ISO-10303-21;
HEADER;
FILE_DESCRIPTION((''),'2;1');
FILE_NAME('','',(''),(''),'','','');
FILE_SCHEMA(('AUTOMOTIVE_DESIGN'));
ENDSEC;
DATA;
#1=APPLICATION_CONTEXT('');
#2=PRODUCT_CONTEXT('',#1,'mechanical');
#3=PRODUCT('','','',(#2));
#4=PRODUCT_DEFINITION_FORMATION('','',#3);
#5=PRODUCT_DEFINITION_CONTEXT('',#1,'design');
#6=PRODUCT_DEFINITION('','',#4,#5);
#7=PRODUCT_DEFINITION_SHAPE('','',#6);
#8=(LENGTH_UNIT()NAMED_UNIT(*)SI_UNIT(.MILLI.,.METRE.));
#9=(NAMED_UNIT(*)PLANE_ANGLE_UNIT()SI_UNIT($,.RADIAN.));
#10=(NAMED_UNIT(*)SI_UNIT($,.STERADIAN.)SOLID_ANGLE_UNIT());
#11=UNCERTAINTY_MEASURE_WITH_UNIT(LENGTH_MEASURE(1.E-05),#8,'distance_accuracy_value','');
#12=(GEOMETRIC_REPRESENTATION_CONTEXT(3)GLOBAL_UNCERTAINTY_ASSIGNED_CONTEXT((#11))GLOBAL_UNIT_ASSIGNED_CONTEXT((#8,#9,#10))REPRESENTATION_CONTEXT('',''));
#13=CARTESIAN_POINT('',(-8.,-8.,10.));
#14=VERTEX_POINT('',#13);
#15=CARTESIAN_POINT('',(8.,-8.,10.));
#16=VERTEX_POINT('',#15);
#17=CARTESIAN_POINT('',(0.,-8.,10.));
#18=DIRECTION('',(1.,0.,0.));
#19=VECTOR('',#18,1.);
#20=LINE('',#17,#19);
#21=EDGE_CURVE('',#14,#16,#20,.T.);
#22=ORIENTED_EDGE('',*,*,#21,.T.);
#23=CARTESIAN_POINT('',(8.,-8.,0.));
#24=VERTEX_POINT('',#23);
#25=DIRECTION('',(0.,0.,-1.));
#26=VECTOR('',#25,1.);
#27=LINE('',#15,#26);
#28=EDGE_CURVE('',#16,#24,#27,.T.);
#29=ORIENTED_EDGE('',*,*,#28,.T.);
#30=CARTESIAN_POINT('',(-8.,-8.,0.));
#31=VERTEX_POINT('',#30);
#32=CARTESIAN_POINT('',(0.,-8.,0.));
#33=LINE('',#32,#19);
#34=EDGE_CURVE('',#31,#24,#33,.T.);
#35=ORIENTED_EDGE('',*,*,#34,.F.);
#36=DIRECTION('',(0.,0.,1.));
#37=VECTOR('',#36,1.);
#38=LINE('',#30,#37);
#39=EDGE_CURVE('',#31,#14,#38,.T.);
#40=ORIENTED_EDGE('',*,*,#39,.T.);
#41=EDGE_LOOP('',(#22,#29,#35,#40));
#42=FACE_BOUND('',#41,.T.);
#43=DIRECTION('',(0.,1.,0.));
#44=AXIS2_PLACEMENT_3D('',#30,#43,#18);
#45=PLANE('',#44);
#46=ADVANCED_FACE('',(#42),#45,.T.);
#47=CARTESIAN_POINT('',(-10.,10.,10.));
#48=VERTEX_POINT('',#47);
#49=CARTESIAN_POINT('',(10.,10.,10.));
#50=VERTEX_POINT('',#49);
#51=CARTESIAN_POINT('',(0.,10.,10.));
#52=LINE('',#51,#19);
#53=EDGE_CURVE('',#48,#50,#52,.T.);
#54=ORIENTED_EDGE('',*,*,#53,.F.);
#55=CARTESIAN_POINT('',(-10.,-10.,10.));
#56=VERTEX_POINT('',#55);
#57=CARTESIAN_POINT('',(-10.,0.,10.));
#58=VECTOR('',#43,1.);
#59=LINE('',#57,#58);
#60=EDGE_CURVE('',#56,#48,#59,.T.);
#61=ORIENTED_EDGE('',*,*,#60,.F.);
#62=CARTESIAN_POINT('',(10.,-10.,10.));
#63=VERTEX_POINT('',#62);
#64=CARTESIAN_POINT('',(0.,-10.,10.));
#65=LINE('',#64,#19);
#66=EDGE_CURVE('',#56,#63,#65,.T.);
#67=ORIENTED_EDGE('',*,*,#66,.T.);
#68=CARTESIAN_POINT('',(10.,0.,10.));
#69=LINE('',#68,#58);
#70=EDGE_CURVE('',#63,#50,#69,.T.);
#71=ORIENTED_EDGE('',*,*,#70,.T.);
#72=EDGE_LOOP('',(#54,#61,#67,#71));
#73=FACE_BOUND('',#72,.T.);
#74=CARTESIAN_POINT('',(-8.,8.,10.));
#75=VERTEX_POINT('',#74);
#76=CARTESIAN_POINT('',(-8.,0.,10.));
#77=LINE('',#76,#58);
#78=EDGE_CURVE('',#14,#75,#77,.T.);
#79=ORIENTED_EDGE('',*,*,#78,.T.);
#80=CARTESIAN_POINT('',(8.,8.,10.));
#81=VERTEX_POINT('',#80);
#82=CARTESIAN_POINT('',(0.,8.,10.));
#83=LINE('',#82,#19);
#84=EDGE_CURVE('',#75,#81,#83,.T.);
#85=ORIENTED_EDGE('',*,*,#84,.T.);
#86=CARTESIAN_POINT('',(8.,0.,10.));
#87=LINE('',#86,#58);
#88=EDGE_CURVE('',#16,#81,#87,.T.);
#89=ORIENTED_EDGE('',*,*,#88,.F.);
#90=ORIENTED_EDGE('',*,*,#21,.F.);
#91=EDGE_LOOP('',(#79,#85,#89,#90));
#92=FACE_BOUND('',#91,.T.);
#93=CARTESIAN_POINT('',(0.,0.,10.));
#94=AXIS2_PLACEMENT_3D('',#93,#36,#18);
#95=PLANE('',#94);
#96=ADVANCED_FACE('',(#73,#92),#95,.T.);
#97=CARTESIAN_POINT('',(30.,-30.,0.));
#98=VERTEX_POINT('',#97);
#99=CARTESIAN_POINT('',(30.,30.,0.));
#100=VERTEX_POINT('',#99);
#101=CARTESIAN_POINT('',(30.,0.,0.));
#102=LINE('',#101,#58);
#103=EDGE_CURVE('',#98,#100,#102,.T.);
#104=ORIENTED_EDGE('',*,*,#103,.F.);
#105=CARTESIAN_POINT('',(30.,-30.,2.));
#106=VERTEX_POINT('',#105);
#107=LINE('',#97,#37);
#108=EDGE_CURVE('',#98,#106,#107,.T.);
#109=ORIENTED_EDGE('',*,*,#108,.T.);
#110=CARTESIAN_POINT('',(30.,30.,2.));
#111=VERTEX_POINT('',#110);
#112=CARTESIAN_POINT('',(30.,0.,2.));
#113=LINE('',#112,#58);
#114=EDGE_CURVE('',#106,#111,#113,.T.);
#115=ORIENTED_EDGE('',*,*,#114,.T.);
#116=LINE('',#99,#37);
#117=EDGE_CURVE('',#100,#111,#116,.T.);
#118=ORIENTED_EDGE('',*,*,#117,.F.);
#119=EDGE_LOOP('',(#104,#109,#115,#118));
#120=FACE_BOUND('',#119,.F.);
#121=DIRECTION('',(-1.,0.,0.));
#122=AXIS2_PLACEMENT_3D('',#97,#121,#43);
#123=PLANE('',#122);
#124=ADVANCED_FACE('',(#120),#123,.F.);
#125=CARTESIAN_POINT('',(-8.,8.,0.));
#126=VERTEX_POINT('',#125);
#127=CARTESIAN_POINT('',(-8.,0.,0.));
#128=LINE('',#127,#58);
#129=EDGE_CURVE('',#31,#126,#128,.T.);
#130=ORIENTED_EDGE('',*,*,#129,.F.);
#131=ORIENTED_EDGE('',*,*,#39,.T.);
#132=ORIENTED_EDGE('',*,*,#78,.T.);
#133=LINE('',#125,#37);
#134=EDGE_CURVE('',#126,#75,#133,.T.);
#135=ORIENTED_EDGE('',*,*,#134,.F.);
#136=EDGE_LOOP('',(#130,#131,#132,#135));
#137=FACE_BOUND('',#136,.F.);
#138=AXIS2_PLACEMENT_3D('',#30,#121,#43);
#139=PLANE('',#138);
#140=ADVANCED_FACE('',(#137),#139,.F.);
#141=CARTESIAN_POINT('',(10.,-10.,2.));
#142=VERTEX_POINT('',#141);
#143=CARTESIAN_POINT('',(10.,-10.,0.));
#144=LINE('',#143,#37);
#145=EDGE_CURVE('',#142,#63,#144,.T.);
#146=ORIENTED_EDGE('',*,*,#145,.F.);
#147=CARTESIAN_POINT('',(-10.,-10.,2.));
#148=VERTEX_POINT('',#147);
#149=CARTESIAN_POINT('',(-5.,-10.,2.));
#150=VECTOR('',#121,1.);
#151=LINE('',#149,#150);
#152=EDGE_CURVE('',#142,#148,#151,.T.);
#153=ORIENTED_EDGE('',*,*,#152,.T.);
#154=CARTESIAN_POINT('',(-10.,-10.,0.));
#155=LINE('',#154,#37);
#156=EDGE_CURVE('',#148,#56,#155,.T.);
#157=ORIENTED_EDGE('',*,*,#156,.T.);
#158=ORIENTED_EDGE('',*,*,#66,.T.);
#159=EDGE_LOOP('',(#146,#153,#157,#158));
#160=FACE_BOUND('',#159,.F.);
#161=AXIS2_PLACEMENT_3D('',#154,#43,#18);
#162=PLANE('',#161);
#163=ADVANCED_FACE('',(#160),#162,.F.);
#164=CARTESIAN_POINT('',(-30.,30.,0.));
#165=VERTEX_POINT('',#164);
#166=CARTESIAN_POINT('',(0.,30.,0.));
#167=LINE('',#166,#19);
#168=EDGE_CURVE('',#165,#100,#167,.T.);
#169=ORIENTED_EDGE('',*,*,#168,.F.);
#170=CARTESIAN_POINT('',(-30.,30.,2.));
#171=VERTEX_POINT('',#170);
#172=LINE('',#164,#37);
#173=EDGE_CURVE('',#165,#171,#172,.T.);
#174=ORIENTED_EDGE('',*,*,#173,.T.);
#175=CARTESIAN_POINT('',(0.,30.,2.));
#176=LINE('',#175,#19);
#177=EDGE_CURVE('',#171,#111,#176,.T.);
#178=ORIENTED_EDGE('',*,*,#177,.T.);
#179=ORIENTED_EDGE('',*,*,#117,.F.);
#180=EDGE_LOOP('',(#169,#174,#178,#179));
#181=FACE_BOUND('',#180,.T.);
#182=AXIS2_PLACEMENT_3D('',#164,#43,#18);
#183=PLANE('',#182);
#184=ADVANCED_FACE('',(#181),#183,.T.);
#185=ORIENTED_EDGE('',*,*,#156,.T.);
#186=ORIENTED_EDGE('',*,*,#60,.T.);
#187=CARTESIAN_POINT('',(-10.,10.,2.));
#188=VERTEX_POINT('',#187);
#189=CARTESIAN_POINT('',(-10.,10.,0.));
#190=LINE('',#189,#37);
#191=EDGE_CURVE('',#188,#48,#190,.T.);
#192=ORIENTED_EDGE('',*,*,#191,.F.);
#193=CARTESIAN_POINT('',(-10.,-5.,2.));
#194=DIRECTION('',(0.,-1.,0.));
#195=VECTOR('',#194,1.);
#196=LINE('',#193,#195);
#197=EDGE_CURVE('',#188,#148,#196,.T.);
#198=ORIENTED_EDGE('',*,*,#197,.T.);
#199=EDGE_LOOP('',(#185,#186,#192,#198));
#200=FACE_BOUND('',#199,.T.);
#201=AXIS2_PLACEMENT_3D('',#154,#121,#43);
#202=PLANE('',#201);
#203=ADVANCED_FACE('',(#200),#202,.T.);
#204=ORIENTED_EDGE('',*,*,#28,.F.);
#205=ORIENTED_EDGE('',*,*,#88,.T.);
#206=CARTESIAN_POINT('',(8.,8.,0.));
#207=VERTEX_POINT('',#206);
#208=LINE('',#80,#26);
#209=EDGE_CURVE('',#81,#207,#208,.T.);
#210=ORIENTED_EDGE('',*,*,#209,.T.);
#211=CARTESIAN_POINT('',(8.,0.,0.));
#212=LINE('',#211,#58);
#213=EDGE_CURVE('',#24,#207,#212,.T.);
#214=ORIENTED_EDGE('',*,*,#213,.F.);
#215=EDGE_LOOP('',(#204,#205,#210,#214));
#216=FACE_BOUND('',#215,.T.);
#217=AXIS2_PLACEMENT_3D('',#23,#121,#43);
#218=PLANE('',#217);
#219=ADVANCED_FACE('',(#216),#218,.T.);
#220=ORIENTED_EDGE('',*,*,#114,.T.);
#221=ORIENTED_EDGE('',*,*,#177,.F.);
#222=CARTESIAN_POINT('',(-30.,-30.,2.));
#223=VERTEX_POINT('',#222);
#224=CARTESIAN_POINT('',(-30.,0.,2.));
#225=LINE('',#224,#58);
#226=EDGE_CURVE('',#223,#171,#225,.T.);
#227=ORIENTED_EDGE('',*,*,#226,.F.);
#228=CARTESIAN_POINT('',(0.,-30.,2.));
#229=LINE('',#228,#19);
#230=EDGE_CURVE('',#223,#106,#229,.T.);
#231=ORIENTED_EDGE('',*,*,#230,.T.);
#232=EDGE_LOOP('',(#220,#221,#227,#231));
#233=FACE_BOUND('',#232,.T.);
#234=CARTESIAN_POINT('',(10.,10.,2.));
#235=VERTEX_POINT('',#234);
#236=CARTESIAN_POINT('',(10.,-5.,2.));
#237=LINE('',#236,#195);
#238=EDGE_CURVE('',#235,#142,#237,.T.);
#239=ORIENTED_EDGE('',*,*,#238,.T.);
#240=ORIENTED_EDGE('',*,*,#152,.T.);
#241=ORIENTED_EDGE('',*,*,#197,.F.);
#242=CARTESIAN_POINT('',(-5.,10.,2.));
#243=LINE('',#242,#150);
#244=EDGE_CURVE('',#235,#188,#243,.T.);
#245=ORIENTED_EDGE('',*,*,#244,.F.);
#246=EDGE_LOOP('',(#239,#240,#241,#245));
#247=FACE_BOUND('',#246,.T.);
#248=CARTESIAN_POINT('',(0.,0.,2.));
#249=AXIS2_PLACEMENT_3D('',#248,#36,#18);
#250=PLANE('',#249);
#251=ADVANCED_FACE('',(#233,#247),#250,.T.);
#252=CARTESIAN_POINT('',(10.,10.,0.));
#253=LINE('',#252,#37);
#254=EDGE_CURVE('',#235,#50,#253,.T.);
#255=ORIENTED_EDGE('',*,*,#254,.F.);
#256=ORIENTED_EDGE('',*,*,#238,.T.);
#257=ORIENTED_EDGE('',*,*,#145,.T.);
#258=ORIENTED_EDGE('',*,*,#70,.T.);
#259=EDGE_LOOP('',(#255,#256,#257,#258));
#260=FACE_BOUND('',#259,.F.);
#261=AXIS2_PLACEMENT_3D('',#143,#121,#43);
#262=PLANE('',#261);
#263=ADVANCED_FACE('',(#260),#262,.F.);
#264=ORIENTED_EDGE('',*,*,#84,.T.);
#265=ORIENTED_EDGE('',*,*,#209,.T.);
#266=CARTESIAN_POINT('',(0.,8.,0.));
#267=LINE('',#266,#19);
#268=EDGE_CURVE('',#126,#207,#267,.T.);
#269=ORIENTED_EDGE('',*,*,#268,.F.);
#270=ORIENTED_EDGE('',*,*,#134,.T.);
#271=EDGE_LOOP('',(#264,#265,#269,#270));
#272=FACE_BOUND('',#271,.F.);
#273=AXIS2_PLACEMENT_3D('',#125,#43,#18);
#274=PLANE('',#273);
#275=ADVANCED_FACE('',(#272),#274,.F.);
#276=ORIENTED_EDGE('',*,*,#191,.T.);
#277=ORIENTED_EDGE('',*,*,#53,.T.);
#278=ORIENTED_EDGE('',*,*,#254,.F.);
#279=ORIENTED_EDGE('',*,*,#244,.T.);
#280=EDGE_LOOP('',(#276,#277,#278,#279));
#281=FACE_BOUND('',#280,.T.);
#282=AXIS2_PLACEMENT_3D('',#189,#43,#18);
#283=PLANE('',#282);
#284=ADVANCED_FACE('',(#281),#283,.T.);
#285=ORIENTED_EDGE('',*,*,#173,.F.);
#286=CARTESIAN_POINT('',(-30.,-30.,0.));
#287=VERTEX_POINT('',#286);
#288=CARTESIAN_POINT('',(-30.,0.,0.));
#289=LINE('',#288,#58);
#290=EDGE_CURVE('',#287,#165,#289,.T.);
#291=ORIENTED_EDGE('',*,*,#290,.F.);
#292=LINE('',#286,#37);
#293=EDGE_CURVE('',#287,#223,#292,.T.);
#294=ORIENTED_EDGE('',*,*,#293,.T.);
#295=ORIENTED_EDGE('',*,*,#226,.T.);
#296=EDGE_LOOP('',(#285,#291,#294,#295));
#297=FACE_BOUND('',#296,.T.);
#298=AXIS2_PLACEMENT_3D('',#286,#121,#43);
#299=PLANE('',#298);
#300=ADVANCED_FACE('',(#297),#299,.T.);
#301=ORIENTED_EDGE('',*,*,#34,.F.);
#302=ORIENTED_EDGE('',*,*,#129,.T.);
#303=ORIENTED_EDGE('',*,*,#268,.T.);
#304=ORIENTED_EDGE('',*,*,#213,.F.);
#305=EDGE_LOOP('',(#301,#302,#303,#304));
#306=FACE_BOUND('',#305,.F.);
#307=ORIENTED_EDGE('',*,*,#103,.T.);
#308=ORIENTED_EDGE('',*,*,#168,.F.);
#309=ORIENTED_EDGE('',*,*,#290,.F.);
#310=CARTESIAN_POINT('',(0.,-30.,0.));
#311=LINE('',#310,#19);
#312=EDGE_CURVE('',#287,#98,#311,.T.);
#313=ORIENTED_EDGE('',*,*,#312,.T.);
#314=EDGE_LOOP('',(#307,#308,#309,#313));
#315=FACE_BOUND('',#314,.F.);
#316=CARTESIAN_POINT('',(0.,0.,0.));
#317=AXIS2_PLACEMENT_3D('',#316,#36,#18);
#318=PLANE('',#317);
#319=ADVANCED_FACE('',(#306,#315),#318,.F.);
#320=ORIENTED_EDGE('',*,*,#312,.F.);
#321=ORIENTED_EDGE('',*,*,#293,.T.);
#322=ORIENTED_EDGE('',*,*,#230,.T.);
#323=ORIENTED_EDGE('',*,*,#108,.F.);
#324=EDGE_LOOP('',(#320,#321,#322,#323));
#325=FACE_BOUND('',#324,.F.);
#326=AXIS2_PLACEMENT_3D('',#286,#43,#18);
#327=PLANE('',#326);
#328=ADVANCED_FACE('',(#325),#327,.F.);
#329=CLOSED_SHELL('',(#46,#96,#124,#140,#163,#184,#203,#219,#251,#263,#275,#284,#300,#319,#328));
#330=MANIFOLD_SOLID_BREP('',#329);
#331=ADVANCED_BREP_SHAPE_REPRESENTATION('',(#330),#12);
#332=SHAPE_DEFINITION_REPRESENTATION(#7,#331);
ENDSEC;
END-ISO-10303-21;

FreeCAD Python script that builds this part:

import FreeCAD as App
import Part
import Sketcher

doc = App.newDocument("Part")
body = doc.addObject("PartDesign::Body", "Body")

sketch1 = body.newObject("Sketcher::SketchObject", "Sketch")
sketch1.AttachmentSupport = (doc.getObject("XY_Plane"), [""])
sketch1.MapMode = "FlatFace"
sketch1.addGeometry([
    Part.LineSegment(App.Vector(-8, 8, 0), App.Vector(-8, -8, 0)),
    Part.LineSegment(App.Vector(-8, -8, 0), App.Vector(8, -8, 0)),
    Part.LineSegment(App.Vector(8, -8, 0), App.Vector(8, 8, 0)),
    Part.LineSegment(App.Vector(8, 8, 0), App.Vector(-8, 8, 0)),
], False)
sketch1.addConstraint([
    Sketcher.Constraint("Coincident", 0, 2, 1, 1),
    Sketcher.Constraint("Coincident", 1, 2, 2, 1),
    Sketcher.Constraint("Coincident", 2, 2, 3, 1),
    Sketcher.Constraint("Coincident", 3, 2, 0, 1),
    Sketcher.Constraint("Vertical", 0),
    Sketcher.Constraint("Horizontal", 1),
    Sketcher.Constraint("Vertical", 2),
    Sketcher.Constraint("Horizontal", 3),
    Sketcher.Constraint("Symmetric", 0, 2, 2, 2, -1, 1),
    Sketcher.Constraint("Equal", 3, 0),
    Sketcher.Constraint("DistanceX", 1, 1, 1, 2, 16.0),
])
pad1 = body.newObject("PartDesign::Pad", "Pad")
pad1.Profile = sketch1
pad1.Length = 10
body2 = doc.addObject("PartDesign::Body", "Body001")

sketch2 = body2.newObject("Sketcher::SketchObject", "Sketch001")
sketch2.AttachmentSupport = (doc.getObject("XY_Plane001"), [""])
sketch2.MapMode = "FlatFace"
sketch2.addGeometry([
    Part.LineSegment(App.Vector(-10, 10, 0), App.Vector(-10, -10, 0)),
    Part.LineSegment(App.Vector(-10, -10, 0), App.Vector(10, -10, 0)),
    Part.LineSegment(App.Vector(10, -10, 0), App.Vector(10, 10, 0)),
    Part.LineSegment(App.Vector(10, 10, 0), App.Vector(-10, 10, 0)),
], False)
sketch2.addConstraint([
    Sketcher.Constraint("Coincident", 0, 2, 1, 1),
    Sketcher.Constraint("Coincident", 1, 2, 2, 1),
    Sketcher.Constraint("Coincident", 2, 2, 3, 1),
    Sketcher.Constraint("Coincident", 3, 2, 0, 1),
    Sketcher.Constraint("Vertical", 0),
    Sketcher.Constraint("Horizontal", 1),
    Sketcher.Constraint("Vertical", 2),
    Sketcher.Constraint("Horizontal", 3),
    Sketcher.Constraint("Symmetric", 0, 2, 2, 2, -1, 1),
    Sketcher.Constraint("Equal", 3, 0),
    Sketcher.Constraint("DistanceX", 1, 1, 1, 2, 20.0),
])
pad2 = body2.newObject("PartDesign::Pad", "Pad001")
pad2.Profile = sketch2
pad2.Length = 10
doc.recompute()

boolean = body2.newObject("PartDesign::Boolean", "Boolean")
boolean.Type = "Cut"
boolean.addObjects([body])
body3 = doc.addObject("PartDesign::Body", "Body002")

sketch3 = body3.newObject("Sketcher::SketchObject", "Sketch002")
sketch3.AttachmentSupport = (doc.getObject("XY_Plane002"), [""])
sketch3.MapMode = "FlatFace"
sketch3.addGeometry([
    Part.LineSegment(App.Vector(-8, 8, 0), App.Vector(-8, -8, 0)),
    Part.LineSegment(App.Vector(-8, -8, 0), App.Vector(8, -8, 0)),
    Part.LineSegment(App.Vector(8, -8, 0), App.Vector(8, 8, 0)),
    Part.LineSegment(App.Vector(8, 8, 0), App.Vector(-8, 8, 0)),
], False)
sketch3.addConstraint([
    Sketcher.Constraint("Coincident", 0, 2, 1, 1),
    Sketcher.Constraint("Coincident", 1, 2, 2, 1),
    Sketcher.Constraint("Coincident", 2, 2, 3, 1),
    Sketcher.Constraint("Coincident", 3, 2, 0, 1),
    Sketcher.Constraint("Vertical", 0),
    Sketcher.Constraint("Horizontal", 1),
    Sketcher.Constraint("Vertical", 2),
    Sketcher.Constraint("Horizontal", 3),
    Sketcher.Constraint("Symmetric", 0, 2, 2, 2, -1, 1),
    Sketcher.Constraint("Equal", 3, 0),
    Sketcher.Constraint("DistanceX", 1, 1, 1, 2, 16.0),
])
pad3 = body3.newObject("PartDesign::Pad", "Pad002")
pad3.Profile = sketch3
pad3.Length = 3
body4 = doc.addObject("PartDesign::Body", "Body003")

sketch4 = body4.newObject("Sketcher::SketchObject", "Sketch003")
sketch4.AttachmentSupport = (doc.getObject("XY_Plane003"), [""])
sketch4.MapMode = "FlatFace"
sketch4.addGeometry([
    Part.LineSegment(App.Vector(-30, 30, 0), App.Vector(-30, -30, 0)),
    Part.LineSegment(App.Vector(-30, -30, 0), App.Vector(30, -30, 0)),
    Part.LineSegment(App.Vector(30, -30, 0), App.Vector(30, 30, 0)),
    Part.LineSegment(App.Vector(30, 30, 0), App.Vector(-30, 30, 0)),
], False)
sketch4.addConstraint([
    Sketcher.Constraint("Coincident", 0, 2, 1, 1),
    Sketcher.Constraint("Coincident", 1, 2, 2, 1),
    Sketcher.Constraint("Coincident", 2, 2, 3, 1),
    Sketcher.Constraint("Coincident", 3, 2, 0, 1),
    Sketcher.Constraint("Vertical", 0),
    Sketcher.Constraint("Horizontal", 1),
    Sketcher.Constraint("Vertical", 2),
    Sketcher.Constraint("Horizontal", 3),
    Sketcher.Constraint("Symmetric", 0, 2, 2, 2, -1, 1),
    Sketcher.Constraint("Equal", 3, 0),
    Sketcher.Constraint("DistanceX", 1, 1, 1, 2, 60.0),
])
pad4 = body4.newObject("PartDesign::Pad", "Pad003")
pad4.Profile = sketch4
pad4.Length = 2
doc.recompute()

boolean2 = body4.newObject("PartDesign::Boolean", "Boolean001")
boolean2.Type = "Cut"
boolean2.addObjects([body3])
doc.recompute()

boolean3 = body4.newObject("PartDesign::Boolean", "Boolean002")
boolean3.Type = "Fuse"
boolean3.addObjects([body2])

doc.recompute()
